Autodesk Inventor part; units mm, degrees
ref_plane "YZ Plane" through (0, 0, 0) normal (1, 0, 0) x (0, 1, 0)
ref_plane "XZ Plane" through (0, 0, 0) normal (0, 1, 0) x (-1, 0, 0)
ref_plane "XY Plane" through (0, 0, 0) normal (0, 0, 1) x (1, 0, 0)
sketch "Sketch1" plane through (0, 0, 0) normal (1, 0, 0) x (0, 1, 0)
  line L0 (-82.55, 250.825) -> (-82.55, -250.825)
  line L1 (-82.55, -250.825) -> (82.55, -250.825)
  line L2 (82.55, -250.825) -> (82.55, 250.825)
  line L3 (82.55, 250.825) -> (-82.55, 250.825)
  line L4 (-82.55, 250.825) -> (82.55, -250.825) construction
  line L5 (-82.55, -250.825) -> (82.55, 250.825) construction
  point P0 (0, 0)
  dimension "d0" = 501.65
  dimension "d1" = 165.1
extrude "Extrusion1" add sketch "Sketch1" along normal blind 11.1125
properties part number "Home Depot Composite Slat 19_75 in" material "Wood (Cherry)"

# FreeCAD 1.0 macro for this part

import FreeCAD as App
import Part
import Sketcher
Q = App.Units.Quantity

doc = App.newDocument("Part")
params = doc.addObject("Spreadsheet::Sheet", "Params")
for row, (alias, value) in enumerate([
    ("sketch1_width", "6.5 in"),
    ("sketch1_height", "19.75 in"),
    ("pad1_length", "0.4375 in"),
], start=1):
    params.set(f"A{row}", alias)
    params.set(f"B{row}", "=" + value)
    params.setAlias(f"B{row}", alias)

body = doc.addObject("PartDesign::Body", "Body")

sketch1 = body.newObject("Sketcher::SketchObject", "Sketch")
sketch1.AttachmentSupport = (doc.getObject("YZ_Plane"), [""])
sketch1.MapMode = "FlatFace"
sketch1.addGeometry([
    Part.LineSegment(App.Vector(83, 251, 0), App.Vector(-83, 251, 0)),
    Part.LineSegment(App.Vector(-83, 251, 0), App.Vector(-83, -251, 0)),
    Part.LineSegment(App.Vector(-83, -251, 0), App.Vector(83, -251, 0)),
    Part.LineSegment(App.Vector(83, -251, 0), App.Vector(83, 251, 0)),
], False)
sketch1.addConstraint([
    Sketcher.Constraint("Coincident", 0, 2, 1, 1),
    Sketcher.Constraint("Coincident", 1, 2, 2, 1),
    Sketcher.Constraint("Coincident", 2, 2, 3, 1),
    Sketcher.Constraint("Coincident", 3, 2, 0, 1),
    Sketcher.Constraint("Horizontal", 0),
    Sketcher.Constraint("Vertical", 1),
    Sketcher.Constraint("Horizontal", 2),
    Sketcher.Constraint("Vertical", 3),
    Sketcher.Constraint("Symmetric", 0, 2, 2, 2, -1, 1),
    Sketcher.Constraint("DistanceX", 0, 2, 0, 1, Q("6.5 in")),
    Sketcher.Constraint("DistanceY", 1, 2, 1, 1, Q("19.75 in")),
])
sketch1.setExpression("Constraints[9]", "Params.sketch1_width")
sketch1.setExpression("Constraints[10]", "Params.sketch1_height")
pad1 = body.newObject("PartDesign::Pad", "Pad")
pad1.Profile = sketch1
pad1.setExpression("Length", "Params.pad1_length")

doc.recompute()
